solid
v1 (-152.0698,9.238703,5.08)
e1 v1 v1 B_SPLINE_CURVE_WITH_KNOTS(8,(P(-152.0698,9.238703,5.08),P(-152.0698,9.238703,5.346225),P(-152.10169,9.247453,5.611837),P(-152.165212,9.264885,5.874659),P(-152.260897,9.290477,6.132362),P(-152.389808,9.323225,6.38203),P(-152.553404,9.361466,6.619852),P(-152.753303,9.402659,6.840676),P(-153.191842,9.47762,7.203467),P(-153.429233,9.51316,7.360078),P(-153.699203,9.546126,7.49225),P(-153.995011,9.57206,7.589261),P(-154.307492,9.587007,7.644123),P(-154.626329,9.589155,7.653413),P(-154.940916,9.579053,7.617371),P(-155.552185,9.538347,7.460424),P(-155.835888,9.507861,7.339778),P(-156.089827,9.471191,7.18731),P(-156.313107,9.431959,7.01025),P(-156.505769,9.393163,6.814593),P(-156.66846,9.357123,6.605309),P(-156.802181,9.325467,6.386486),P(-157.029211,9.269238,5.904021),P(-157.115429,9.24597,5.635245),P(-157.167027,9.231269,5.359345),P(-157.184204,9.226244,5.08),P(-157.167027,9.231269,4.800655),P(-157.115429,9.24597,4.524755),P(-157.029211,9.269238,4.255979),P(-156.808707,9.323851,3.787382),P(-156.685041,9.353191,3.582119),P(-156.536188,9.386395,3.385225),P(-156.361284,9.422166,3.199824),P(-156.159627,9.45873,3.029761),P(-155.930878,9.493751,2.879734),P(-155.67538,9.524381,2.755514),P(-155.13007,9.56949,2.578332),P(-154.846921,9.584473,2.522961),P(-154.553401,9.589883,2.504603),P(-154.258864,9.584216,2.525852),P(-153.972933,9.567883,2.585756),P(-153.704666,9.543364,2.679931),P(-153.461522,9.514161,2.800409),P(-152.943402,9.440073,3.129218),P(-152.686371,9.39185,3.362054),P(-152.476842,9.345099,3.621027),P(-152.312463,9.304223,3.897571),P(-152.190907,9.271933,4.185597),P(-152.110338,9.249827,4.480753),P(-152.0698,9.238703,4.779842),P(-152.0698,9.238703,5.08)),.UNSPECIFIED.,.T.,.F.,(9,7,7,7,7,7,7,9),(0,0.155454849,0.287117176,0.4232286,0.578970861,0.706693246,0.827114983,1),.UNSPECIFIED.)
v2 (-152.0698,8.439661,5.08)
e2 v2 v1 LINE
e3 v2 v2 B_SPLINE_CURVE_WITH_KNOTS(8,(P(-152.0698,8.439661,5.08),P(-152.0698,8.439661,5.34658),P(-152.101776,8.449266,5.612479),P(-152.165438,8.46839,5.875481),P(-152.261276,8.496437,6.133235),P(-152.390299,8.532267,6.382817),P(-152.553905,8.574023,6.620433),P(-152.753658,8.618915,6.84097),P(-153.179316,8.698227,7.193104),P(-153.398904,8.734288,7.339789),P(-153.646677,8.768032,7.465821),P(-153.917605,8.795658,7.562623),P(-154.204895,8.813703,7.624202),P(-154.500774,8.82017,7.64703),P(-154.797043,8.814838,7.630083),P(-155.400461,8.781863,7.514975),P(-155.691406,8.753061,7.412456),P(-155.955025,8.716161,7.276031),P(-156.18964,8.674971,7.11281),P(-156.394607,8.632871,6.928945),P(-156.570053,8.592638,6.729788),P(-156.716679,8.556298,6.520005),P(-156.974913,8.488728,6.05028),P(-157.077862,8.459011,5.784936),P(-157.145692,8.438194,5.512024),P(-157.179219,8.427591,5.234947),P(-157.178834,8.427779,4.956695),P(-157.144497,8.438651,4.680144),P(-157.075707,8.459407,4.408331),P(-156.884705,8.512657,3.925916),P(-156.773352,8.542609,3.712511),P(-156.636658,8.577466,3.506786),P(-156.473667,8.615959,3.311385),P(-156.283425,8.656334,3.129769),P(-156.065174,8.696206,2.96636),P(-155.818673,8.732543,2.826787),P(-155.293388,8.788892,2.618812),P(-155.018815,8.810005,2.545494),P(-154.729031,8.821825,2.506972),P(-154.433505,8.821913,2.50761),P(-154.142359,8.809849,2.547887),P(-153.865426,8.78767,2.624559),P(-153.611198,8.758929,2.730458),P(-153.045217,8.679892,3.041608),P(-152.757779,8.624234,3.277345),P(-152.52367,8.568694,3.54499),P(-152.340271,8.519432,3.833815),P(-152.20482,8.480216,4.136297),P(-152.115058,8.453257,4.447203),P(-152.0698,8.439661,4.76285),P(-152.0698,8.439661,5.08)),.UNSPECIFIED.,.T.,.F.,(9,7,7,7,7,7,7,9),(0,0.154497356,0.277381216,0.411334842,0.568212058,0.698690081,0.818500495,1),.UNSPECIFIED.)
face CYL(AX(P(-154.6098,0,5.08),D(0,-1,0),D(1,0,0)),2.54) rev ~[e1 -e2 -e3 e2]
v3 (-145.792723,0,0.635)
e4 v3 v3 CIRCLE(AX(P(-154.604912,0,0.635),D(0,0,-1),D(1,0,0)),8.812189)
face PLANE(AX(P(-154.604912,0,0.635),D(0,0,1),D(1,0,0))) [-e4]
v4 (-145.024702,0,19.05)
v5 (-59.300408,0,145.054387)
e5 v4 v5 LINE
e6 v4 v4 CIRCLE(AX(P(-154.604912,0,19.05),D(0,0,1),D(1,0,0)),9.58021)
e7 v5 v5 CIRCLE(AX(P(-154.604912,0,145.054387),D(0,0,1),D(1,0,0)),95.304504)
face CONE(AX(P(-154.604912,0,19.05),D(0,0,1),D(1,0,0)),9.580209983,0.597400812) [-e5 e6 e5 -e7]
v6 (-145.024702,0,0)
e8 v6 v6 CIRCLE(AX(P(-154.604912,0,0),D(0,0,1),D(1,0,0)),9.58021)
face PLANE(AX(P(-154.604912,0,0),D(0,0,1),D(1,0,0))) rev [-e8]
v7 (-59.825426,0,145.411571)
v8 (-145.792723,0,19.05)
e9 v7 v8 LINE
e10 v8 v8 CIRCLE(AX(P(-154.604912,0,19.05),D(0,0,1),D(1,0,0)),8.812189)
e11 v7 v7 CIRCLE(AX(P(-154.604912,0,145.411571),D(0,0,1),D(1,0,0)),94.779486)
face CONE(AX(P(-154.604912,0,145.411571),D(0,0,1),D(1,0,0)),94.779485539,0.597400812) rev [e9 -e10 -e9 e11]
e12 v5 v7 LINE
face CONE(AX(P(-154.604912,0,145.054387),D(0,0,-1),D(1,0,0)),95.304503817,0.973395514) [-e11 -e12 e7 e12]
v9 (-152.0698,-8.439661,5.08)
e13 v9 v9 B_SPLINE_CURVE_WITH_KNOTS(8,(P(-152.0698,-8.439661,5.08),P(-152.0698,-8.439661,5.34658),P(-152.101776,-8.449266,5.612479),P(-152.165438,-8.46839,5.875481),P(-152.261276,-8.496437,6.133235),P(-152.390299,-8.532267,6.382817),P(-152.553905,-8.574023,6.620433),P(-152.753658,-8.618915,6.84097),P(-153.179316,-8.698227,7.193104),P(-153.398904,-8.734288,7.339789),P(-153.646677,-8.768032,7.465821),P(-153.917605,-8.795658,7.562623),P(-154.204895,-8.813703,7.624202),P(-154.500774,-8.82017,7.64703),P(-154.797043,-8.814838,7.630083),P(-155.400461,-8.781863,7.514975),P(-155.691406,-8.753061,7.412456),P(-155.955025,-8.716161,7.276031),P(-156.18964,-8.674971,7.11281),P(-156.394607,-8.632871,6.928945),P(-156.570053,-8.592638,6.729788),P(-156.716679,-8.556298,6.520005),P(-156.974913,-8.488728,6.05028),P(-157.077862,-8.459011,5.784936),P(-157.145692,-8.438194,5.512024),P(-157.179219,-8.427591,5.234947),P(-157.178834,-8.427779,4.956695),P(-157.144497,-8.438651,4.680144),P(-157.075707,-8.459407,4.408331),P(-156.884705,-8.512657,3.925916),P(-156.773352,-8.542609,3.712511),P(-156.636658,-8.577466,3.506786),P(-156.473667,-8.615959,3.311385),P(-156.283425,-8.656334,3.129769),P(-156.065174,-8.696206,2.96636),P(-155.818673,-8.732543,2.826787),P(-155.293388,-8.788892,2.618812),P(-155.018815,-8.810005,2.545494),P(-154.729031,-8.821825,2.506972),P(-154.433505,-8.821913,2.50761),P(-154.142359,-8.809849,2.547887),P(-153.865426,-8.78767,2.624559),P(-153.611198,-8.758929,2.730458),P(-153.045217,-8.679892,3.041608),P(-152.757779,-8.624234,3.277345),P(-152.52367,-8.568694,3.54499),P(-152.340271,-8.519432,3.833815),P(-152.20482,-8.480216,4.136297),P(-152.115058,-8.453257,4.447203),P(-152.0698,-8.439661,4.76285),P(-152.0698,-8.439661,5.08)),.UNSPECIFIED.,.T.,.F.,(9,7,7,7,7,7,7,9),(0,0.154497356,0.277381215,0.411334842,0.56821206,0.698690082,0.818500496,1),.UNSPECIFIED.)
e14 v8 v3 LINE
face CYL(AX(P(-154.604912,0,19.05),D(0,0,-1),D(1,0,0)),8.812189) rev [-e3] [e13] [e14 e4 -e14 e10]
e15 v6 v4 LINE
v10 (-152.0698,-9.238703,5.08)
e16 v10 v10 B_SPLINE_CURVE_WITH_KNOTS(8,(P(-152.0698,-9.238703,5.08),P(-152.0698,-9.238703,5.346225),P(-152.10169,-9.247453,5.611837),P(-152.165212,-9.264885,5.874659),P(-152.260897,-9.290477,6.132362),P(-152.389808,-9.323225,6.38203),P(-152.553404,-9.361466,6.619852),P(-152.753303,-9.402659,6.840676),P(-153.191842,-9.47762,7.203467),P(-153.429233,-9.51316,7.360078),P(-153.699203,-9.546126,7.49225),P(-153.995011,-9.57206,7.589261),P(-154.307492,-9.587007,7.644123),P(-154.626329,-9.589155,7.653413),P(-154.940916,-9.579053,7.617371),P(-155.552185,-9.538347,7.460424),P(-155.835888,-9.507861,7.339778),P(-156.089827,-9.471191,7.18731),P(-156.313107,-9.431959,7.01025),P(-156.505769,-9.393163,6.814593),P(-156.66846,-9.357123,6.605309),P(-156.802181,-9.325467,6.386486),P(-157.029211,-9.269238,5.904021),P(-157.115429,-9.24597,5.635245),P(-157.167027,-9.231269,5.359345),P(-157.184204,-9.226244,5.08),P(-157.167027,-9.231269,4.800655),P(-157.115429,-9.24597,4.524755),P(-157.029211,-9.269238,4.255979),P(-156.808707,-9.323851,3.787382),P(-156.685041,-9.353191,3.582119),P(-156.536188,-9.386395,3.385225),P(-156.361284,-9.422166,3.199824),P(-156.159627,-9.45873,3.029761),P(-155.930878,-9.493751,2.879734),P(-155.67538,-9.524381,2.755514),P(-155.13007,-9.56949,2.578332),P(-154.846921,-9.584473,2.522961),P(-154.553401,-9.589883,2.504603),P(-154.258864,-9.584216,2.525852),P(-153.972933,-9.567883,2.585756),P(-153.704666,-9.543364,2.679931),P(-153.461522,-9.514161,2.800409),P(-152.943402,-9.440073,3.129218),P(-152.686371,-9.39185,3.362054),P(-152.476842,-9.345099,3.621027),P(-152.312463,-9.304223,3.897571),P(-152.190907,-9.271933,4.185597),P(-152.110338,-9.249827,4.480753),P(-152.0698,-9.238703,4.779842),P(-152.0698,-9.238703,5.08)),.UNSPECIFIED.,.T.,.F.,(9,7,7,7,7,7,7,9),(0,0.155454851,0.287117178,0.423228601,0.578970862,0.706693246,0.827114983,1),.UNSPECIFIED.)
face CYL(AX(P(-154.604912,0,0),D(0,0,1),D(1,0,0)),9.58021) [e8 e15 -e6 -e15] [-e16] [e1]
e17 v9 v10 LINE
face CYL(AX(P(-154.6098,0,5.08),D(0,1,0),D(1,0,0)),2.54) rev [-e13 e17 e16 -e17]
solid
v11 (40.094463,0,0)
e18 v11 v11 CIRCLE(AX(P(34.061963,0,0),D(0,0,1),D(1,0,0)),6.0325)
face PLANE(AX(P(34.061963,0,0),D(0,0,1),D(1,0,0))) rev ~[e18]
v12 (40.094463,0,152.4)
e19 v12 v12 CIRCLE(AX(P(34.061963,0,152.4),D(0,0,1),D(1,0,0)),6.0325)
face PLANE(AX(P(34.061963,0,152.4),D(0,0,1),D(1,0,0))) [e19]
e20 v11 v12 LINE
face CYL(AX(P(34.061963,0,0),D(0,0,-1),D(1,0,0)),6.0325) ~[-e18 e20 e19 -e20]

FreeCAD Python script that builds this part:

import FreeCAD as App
import Part
import Sketcher
Q = App.Units.Quantity


def add_polygon(sketch, points):
    """Adds a closed chain of lines whose ends are joined by coincident constraints."""
    first, n = sketch.GeometryCount, len(points)
    for a, b in zip(points, points[1:] + points[:1]):
        sketch.addGeometry(Part.LineSegment(App.Vector(*a, 0), App.Vector(*b, 0)), False)
    for i in range(n):
        sketch.addConstraint(Sketcher.Constraint("Coincident", first + i, 2, first + (i + 1) % n, 1))

doc = App.newDocument("Part")
body = doc.addObject("PartDesign::Body", "Body")

sketch1 = doc.addObject("Sketcher::SketchObject", "Sketch")
body.addObject(sketch1)
sketch1.AttachmentSupport = (doc.XY_Plane, [""])
sketch1.MapMode = "FlatFace"
sketch1.addGeometry(Part.Circle(App.Vector(0, 0, 0), App.Vector(0, 0, 1), 6), False)
sketch1.addConstraint([
    Sketcher.Constraint("Coincident", 0, 3, -1, 1),
    Sketcher.Constraint("Diameter", 0, Q("0.5 in")),
])
pad1 = doc.addObject("PartDesign::Pad", "Pad")
body.addObject(pad1)
pad1.Profile = sketch1
pad1.Length = Q("0.025 in")

sketch2 = doc.addObject("Sketcher::SketchObject", "Sketch001")
body.addObject(sketch2)
sketch2.AttachmentSupport = (doc.XY_Plane, [""])
sketch2.MapMode = "FlatFace"
sketch2.AttachmentOffset = App.Placement(App.Vector(0, 0, 0.025 * 25.4), App.Rotation())
sketch2.addGeometry([
    Part.Circle(App.Vector(0, 0, 0), App.Vector(0, 0, 1), 6),
    Part.Circle(App.Vector(0, 0, 0), App.Vector(0, 0, 1), 6),
], False)
sketch2.addConstraint([
    Sketcher.Constraint("Coincident", 0, 3, -1, 1),
    Sketcher.Constraint("Coincident", 1, 3, -1, 1),
    Sketcher.Constraint("Diameter", 0, Q("0.5 in")),
    Sketcher.Constraint("Diameter", 1, Q("0.45 in")),
])
pad2 = doc.addObject("PartDesign::Pad", "Pad001")
body.addObject(pad2)
pad2.Profile = sketch2
pad2.Length = Q("0.5 in")

sketch3 = doc.addObject("Sketcher::SketchObject", "Sketch002")
body.addObject(sketch3)
sketch3.AttachmentSupport = (doc.XZ_Plane, [""])
sketch3.MapMode = "FlatFace"
sketch3.addGeometry(Part.Circle(App.Vector(0, 3.2, 0), App.Vector(0, 0, 1), 2.2), False)
sketch3.addConstraint([
    Sketcher.Constraint("PointOnObject", 0, 3, -2),
    Sketcher.Constraint("Diameter", 0, Q("0.175 in")),
    Sketcher.Constraint("DistanceY", -1, 1, 0, 3, Q("0.125 in")),
])
pocket1 = doc.addObject("PartDesign::Pocket", "Pocket")
body.addObject(pocket1)
pocket1.Profile = sketch3
pocket1.Type = "ThroughAll"
pocket1.Midplane = True
body2 = doc.addObject("PartDesign::Body", "Body001")

sketch4 = doc.addObject("Sketcher::SketchObject", "Sketch003")
body2.addObject(sketch4)
sketch4.AttachmentSupport = (doc.getObject("XY_Plane001"), [""])
sketch4.MapMode = "FlatFace"
sketch4.addGeometry(Part.Circle(App.Vector(34, 0, 0), App.Vector(0, 0, 1), 6), False)
sketch4.addConstraint([
    Sketcher.Constraint("PointOnObject", 0, 3, -1),
    Sketcher.Constraint("Diameter", 0, Q("0.475 in")),
    Sketcher.Constraint("DistanceX", -1, 1, 0, 3, Q("34.061963 mm")),
])
pad3 = doc.addObject("PartDesign::Pad", "Pad002")
body2.addObject(pad3)
pad3.Profile = sketch4
pad3.Length = Q("6 in")
body3 = doc.addObject("PartDesign::Body", "Body002")

sketch5 = doc.addObject("Sketcher::SketchObject", "Sketch004")
body3.addObject(sketch5)
sketch5.AttachmentSupport = (doc.getObject("XZ_Plane002"), [""])
sketch5.MapMode = "FlatFace"
add_polygon(sketch5, [(-145.8, 19.1), (-145.8, 0), (-145, 0), (-145, 19.1), (-59.3, 145.1), (-59.8, 145.4)])
sketch5.addGeometry(Part.LineSegment(App.Vector(-154.6, 0, 0), App.Vector(-154.6, 145.4, 0)), True)
sketch5.addConstraint([
    Sketcher.Constraint("Vertical", 0),
    Sketcher.Constraint("Horizontal", 1),
    Sketcher.Constraint("Vertical", 2),
    Sketcher.Constraint("Vertical", 6),
    Sketcher.Constraint("PointOnObject", 0, 2, -1),
    Sketcher.Constraint("PointOnObject", 6, 1, -1),
    Sketcher.Constraint("Perpendicular", 3, 4),
    Sketcher.Constraint("Perpendicular", 4, 5),
    Sketcher.Constraint("Horizontal", 2, 2, 5, 2),
    Sketcher.Constraint("Horizontal", 4, 2, 6, 2),
    Sketcher.Constraint("Distance", 3, Q("6 in")),
    Sketcher.Constraint("DistanceY", 0, 2, 0, 1, Q("0.75 in")),
    Sketcher.Constraint("Distance", 4, Q("0.025 in")),
    Sketcher.Constraint("DistanceY", 6, 1, 6, 2, Q("145.411571 mm")),
    Sketcher.Constraint("DistanceX", 1, 2, -1, 1, Q("145.024702 mm")),
    Sketcher.Constraint("DistanceX", 6, 1, -1, 1, Q("154.604912 mm")),
])
revolution = doc.addObject("PartDesign::Revolution", "Revolution")
body3.addObject(revolution)
revolution.Profile = sketch5
revolution.ReferenceAxis = (sketch5, ["Axis0"])
revolution.Angle = 360

sketch6 = doc.addObject("Sketcher::SketchObject", "Sketch005")
body3.addObject(sketch6)
sketch6.AttachmentSupport = (doc.getObject("XZ_Plane002"), [""])
sketch6.MapMode = "FlatFace"
sketch6.addGeometry(Part.Circle(App.Vector(-154.6, 5.1, 0), App.Vector(0, 0, 1), 2.5), False)
sketch6.addConstraint([
    Sketcher.Constraint("Diameter", 0, Q("0.2 in")),
    Sketcher.Constraint("DistanceY", -1, 1, 0, 3, Q("0.2 in")),
    Sketcher.Constraint("DistanceX", 0, 3, -1, 1, Q("6.087 in")),
])
pocket2 = doc.addObject("PartDesign::Pocket", "Pocket001")
body3.addObject(pocket2)
pocket2.Profile = sketch6
pocket2.Type = "ThroughAll"
pocket2.Midplane = True

sketch7 = doc.addObject("Sketcher::SketchObject", "Sketch006")
body3.addObject(sketch7)
sketch7.AttachmentSupport = (doc.getObject("XY_Plane002"), [""])
sketch7.MapMode = "FlatFace"
sketch7.addGeometry(Part.Circle(App.Vector(-155, 0, 0), App.Vector(0, 0, 1), 10), False)
sketch7.addConstraint([
    Sketcher.Constraint("PointOnObject", 0, 3, -1),
    Sketcher.Constraint("Diameter", 0, Q("19.16042 mm")),
    Sketcher.Constraint("DistanceX", 0, 3, -1, 1, Q("154.604912 mm")),
])
pad4 = doc.addObject("PartDesign::Pad", "Pad003")
body3.addObject(pad4)
pad4.Profile = sketch7
pad4.Length = Q("0.025 in")
body.Visibility = False

doc.recompute()
